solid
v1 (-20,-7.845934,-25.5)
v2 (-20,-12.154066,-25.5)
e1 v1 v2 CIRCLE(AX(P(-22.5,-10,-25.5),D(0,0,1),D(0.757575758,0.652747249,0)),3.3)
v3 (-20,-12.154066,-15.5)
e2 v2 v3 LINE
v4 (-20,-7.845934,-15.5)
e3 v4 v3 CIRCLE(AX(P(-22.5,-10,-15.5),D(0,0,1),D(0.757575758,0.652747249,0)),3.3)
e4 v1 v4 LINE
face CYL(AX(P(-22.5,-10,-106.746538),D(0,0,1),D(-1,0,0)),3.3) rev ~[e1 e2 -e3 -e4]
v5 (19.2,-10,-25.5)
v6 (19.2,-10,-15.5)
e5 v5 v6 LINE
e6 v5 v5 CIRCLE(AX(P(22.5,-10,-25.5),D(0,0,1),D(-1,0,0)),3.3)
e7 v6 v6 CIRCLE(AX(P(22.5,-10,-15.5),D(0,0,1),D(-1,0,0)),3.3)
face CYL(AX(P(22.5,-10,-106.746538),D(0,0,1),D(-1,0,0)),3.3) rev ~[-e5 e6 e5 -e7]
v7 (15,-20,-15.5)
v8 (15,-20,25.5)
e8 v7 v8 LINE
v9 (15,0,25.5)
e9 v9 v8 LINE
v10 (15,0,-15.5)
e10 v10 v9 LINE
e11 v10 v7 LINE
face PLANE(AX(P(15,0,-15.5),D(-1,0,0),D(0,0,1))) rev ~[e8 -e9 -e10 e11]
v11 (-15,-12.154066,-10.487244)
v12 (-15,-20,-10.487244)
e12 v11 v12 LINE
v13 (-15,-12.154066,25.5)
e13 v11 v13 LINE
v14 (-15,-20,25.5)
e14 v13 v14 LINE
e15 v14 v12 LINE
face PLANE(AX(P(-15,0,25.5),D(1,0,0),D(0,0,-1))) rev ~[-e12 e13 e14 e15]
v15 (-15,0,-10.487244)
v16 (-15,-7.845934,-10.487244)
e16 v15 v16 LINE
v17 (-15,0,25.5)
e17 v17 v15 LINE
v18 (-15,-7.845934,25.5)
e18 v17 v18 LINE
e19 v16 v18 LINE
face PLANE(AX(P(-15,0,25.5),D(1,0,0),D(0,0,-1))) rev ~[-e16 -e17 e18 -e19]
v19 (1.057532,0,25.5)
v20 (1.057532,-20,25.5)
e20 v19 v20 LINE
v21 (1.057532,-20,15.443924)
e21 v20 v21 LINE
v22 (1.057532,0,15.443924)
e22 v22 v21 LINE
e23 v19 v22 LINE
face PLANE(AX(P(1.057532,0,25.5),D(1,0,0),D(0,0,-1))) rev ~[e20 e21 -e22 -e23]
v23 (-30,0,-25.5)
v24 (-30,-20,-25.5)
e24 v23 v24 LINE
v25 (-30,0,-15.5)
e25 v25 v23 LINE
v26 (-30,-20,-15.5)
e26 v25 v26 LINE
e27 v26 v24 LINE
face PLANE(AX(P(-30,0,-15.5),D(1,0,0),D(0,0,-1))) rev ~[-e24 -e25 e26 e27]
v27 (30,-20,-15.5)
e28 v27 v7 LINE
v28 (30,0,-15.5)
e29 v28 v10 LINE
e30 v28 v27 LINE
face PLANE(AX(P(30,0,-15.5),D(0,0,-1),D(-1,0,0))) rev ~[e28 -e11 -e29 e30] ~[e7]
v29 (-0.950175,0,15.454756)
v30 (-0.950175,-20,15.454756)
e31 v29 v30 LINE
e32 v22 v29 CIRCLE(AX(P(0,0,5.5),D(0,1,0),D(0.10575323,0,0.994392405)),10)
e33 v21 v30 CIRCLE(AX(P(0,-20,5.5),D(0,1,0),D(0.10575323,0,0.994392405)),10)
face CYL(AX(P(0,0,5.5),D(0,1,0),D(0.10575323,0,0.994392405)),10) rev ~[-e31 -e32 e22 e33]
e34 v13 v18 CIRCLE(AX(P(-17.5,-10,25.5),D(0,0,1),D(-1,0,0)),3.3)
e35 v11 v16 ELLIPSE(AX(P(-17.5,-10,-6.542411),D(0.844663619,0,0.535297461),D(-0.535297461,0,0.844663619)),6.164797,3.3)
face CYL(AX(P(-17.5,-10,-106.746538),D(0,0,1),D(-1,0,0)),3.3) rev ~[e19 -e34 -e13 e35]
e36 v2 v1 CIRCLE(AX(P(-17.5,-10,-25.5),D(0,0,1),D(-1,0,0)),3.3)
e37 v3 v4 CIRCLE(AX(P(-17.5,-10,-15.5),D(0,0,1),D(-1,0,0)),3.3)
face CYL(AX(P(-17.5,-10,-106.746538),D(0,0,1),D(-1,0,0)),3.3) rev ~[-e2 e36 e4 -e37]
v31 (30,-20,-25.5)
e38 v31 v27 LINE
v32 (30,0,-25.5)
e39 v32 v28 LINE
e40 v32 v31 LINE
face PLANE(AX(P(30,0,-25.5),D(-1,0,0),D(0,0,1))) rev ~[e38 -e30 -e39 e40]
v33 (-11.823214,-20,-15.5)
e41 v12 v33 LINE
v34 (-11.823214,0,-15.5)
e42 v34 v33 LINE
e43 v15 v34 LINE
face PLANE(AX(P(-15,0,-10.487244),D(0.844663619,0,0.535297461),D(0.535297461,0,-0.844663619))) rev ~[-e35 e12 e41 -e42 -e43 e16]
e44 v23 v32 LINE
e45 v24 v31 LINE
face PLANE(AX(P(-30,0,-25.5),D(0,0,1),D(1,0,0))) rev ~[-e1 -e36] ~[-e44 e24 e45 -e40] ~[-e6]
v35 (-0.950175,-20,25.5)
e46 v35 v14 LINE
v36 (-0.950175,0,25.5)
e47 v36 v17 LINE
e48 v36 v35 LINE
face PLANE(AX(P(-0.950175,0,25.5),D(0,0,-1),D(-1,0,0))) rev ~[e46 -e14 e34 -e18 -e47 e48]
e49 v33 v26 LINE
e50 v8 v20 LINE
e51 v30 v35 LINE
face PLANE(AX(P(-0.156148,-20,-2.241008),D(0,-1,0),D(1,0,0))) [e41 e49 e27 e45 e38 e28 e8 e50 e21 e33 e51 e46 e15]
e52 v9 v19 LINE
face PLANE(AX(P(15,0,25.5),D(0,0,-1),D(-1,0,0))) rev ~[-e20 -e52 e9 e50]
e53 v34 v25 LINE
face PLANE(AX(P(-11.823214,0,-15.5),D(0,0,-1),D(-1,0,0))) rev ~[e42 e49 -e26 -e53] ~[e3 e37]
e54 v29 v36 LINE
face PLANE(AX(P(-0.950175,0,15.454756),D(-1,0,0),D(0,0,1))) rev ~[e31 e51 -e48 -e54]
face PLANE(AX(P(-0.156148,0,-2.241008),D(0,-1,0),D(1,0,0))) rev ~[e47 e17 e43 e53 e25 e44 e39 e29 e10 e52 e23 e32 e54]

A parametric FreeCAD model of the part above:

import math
import FreeCAD as App
import Part
import Sketcher
Q = App.Units.Quantity

doc = App.newDocument("Part")
body = doc.addObject("PartDesign::Body", "Body")

# Sketch on XZ plane
sketch1 = body.newObject("Sketcher::SketchObject", "Sketch")
sketch1.AttachmentSupport = (doc.getObject("XZ_Plane"), [""])
sketch1.MapMode = "FlatFace"
sketch1.addGeometry([
    Part.LineSegment(App.Vector(-30, -25.5, 0), App.Vector(30, -25.5, 0)),  # 0
    Part.LineSegment(App.Vector(30, -25.5, 0), App.Vector(30, -15.5, 0)),  # 1
    Part.LineSegment(App.Vector(30, -15.5, 0), App.Vector(15, -15.5, 0)),  # 2
    Part.LineSegment(App.Vector(15, -15.5, 0), App.Vector(15, 25.5, 0)),  # 3
    Part.LineSegment(App.Vector(15, 25.5, 0), App.Vector(1.1, 25.5, 0)),  # 4
    Part.LineSegment(App.Vector(1.1, 25.5, 0), App.Vector(1.1, 15.4, 0)),  # 5
    Part.ArcOfCircle(Part.Circle(App.Vector(0, 5.5, 0), App.Vector(0, 0, 1), 10), math.radians(95), math.radians(444)),  # 6
    Part.LineSegment(App.Vector(-1, 15.5, 0), App.Vector(-1, 25.5, 0)),  # 7
    Part.LineSegment(App.Vector(-1, 25.5, 0), App.Vector(-15, 25.5, 0)),  # 8
    Part.LineSegment(App.Vector(-15, 25.5, 0), App.Vector(-15, -10.5, 0)),  # 9
    Part.LineSegment(App.Vector(-15, -10.5, 0), App.Vector(-11.8, -15.5, 0)),  # 10
    Part.LineSegment(App.Vector(-11.8, -15.5, 0), App.Vector(-30, -15.5, 0)),  # 11
    Part.LineSegment(App.Vector(-30, -15.5, 0), App.Vector(-30, -25.5, 0)),  # 12
], False)
sketch1.addConstraint([
    Sketcher.Constraint("Coincident", 0, 2, 1, 1),
    Sketcher.Constraint("Coincident", 1, 2, 2, 1),
    Sketcher.Constraint("Coincident", 2, 2, 3, 1),
    Sketcher.Constraint("Coincident", 3, 2, 4, 1),
    Sketcher.Constraint("Coincident", 4, 2, 5, 1),
    Sketcher.Constraint("Coincident", 5, 2, 6, 2),
    Sketcher.Constraint("Coincident", 6, 1, 7, 1),
    Sketcher.Constraint("Coincident", 7, 2, 8, 1),
    Sketcher.Constraint("Coincident", 8, 2, 9, 1),
    Sketcher.Constraint("Coincident", 9, 2, 10, 1),
    Sketcher.Constraint("Coincident", 10, 2, 11, 1),
    Sketcher.Constraint("Coincident", 11, 2, 12, 1),
    Sketcher.Constraint("Coincident", 12, 2, 0, 1),
    Sketcher.Constraint("Horizontal", 0),
    Sketcher.Constraint("Vertical", 1),
    Sketcher.Constraint("Horizontal", 2),
    Sketcher.Constraint("Vertical", 3),
    Sketcher.Constraint("Horizontal", 4),
    Sketcher.Constraint("Vertical", 5),
    Sketcher.Constraint("Vertical", 7),
    Sketcher.Constraint("Horizontal", 8),
    Sketcher.Constraint("Vertical", 9),
    Sketcher.Constraint("Horizontal", 11),
    Sketcher.Constraint("Vertical", 12),
    Sketcher.Constraint("Symmetric", 3, 2, 8, 2, -2),
    Sketcher.Constraint("Symmetric", 1, 2, 11, 2, -2),
    Sketcher.Constraint("PointOnObject", 6, 3, -2),
    Sketcher.Constraint("Radius", 6, Q("10 mm")),
    Sketcher.Constraint("DistanceX", 0, 1, 0, 2, Q("60 mm")),
    Sketcher.Constraint("DistanceX", 2, 2, 2, 1, Q("15 mm")),
    Sketcher.Constraint("DistanceY", 1, 1, 1, 2, Q("10 mm")),
    Sketcher.Constraint("DistanceY", 3, 1, 3, 2, Q("41 mm")),
    Sketcher.Constraint("DistanceY", 0, 2, 6, 3, Q("31 mm")),
    Sketcher.Constraint("DistanceY", -1, 1, 6, 3, Q("5.5 mm")),
    Sketcher.Constraint("DistanceY", 9, 2, 6, 1, Q("25.942 mm")),
    Sketcher.Constraint("Distance", 10, Q("5.934618 mm")),
    Sketcher.Constraint("DistanceX", 4, 2, 4, 1, Q("13.942468 mm")),
    Sketcher.Constraint("DistanceX", 8, 2, 8, 1, Q("14.049825 mm")),
])
pad1 = body.newObject("PartDesign::Pad", "Pad")
pad1.Profile = sketch1
pad1.Length = 20

# Sketch on XY plane
sketch2 = body.newObject("Sketcher::SketchObject", "Sketch001")
sketch2.AttachmentSupport = (doc.getObject("XY_Plane"), [""])
sketch2.MapMode = "FlatFace"
sketch2.AttachmentOffset = App.Placement(App.Vector(0, 0, -25.5), App.Rotation())
sketch2.addGeometry(Part.Circle(App.Vector(-22.5, -10, 0), App.Vector(0, 0, 1), 3.3), False)
sketch2.addConstraint([
    Sketcher.Constraint("Diameter", 0, Q("6.6 mm")),
    Sketcher.Constraint("DistanceY", 0, 3, -1, 1, Q("10 mm")),
    Sketcher.Constraint("DistanceX", 0, 3, -1, 1, Q("22.5 mm")),
])
doc.recompute()
hole = body.newObject("PartDesign::Hole", "Hole")
hole.Profile = sketch2
hole.ThreadType = "None"
hole.Diameter = 6.6
hole.DepthType = "ThroughAll"
hole.Reversed = True

# Sketch on XY plane
sketch3 = body.newObject("Sketcher::SketchObject", "Sketch002")
sketch3.AttachmentSupport = (doc.getObject("XY_Plane"), [""])
sketch3.MapMode = "FlatFace"
sketch3.AttachmentOffset = App.Placement(App.Vector(0, 0, -25.5), App.Rotation())
sketch3.addGeometry(Part.Circle(App.Vector(22.5, -10, 0), App.Vector(0, 0, 1), 3.3), False)
sketch3.addConstraint([
    Sketcher.Constraint("Diameter", 0, Q("6.6 mm")),
    Sketcher.Constraint("DistanceY", 0, 3, -1, 1, Q("10 mm")),
    Sketcher.Constraint("DistanceX", -1, 1, 0, 3, Q("22.5 mm")),
])
doc.recompute()
hole2 = body.newObject("PartDesign::Hole", "Hole001")
hole2.Profile = sketch3
hole2.ThreadType = "None"
hole2.Diameter = 6.6
hole2.DepthType = "ThroughAll"
hole2.Reversed = True

# Sketch on XY plane
sketch4 = body.newObject("Sketcher::SketchObject", "Sketch003")
sketch4.AttachmentSupport = (doc.getObject("XY_Plane"), [""])
sketch4.MapMode = "FlatFace"
sketch4.AttachmentOffset = App.Placement(App.Vector(0, 0, -25.5), App.Rotation())
sketch4.addGeometry(Part.Circle(App.Vector(-17.5, -10, 0), App.Vector(0, 0, 1), 3.3), False)
sketch4.addConstraint([
    Sketcher.Constraint("Diameter", 0, Q("6.6 mm")),
    Sketcher.Constraint("DistanceY", 0, 3, -1, 1, Q("10 mm")),
    Sketcher.Constraint("DistanceX", 0, 3, -1, 1, Q("17.5 mm")),
])
doc.recompute()
hole3 = body.newObject("PartDesign::Hole", "Hole002")
hole3.Profile = sketch4
hole3.ThreadType = "None"
hole3.Diameter = 6.6
hole3.DepthType = "ThroughAll"
hole3.Reversed = True

doc.recompute()
